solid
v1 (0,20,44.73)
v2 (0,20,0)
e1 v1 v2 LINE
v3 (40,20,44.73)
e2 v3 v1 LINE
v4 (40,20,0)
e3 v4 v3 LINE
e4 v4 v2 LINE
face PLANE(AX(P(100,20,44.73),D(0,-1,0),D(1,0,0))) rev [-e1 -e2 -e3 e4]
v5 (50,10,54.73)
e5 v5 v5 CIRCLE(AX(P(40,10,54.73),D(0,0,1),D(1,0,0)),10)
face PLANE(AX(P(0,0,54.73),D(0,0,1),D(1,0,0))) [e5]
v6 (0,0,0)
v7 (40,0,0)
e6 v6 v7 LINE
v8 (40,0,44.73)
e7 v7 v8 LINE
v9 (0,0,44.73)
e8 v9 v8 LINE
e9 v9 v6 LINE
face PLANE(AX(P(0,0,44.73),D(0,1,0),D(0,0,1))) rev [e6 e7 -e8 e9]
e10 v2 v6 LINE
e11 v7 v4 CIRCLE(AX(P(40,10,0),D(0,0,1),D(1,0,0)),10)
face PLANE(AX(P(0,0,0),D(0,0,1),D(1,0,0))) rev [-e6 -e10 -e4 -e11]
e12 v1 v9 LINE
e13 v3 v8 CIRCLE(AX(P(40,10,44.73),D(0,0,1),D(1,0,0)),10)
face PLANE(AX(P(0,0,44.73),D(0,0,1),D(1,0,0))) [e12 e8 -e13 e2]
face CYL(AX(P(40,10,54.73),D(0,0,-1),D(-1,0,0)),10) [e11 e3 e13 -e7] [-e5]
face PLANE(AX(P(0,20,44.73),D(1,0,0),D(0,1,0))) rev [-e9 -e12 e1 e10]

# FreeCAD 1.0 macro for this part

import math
import FreeCAD as App
import Part
import Sketcher

V = App.Vector


def add_polygon(sketch, points):
    """Adds a closed chain of lines whose ends are joined by coincident constraints."""
    first, n = sketch.GeometryCount, len(points)
    for a, b in zip(points, points[1:] + points[:1]):
        sketch.addGeometry(Part.LineSegment(App.Vector(*a, 0), App.Vector(*b, 0)), False)
    for i in range(n):
        sketch.addConstraint(Sketcher.Constraint("Coincident", first + i, 2, first + (i + 1) % n, 1))

doc = App.newDocument("Part")
body = doc.addObject("PartDesign::Body", "Body")

sketch1 = body.newObject("Sketcher::SketchObject", "Sketch")
sketch1.AttachmentSupport = (doc.getObject("XY_Plane"), [""])
sketch1.MapMode = "FlatFace"
add_polygon(sketch1, [(0, 20), (0, 0), (100, 0), (100, 20)])
sketch1.addConstraint([
    Sketcher.Constraint("Vertical", 0),
    Sketcher.Constraint("Horizontal", 1),
    Sketcher.Constraint("Vertical", 2),
    Sketcher.Constraint("Horizontal", 3),
    Sketcher.Constraint("Coincident", 0, 2, -1, 1),
    Sketcher.Constraint("DistanceX", 1, 1, 1, 2, 100.0),
    Sketcher.Constraint("DistanceY", 0, 2, 0, 1, 20.0),
])
pad1 = body.newObject("PartDesign::Pad", "Pad")
pad1.Profile = sketch1
pad1.Length = 44.73

sketch2 = body.newObject("Sketcher::SketchObject", "Sketch001")
sketch2.AttachmentSupport = (doc.getObject("XY_Plane"), [""])
sketch2.MapMode = "FlatFace"
sketch2.AttachmentOffset = App.Placement(V(0, 0, 44.73), App.Rotation())
sketch2.addGeometry(Part.Circle(V(40, 10, 0), V(0, 0, 1), 10), False)
sketch2.addConstraint([
    Sketcher.Constraint("Diameter", 0, 20.0),
    Sketcher.Constraint("DistanceX", -1, 1, 0, 3, 40.0),
    Sketcher.Constraint("DistanceY", -1, 1, 0, 3, 10.0),
])
pad2 = body.newObject("PartDesign::Pad", "Pad001")
pad2.Profile = sketch2
pad2.Length = 10

sketch3 = body.newObject("Sketcher::SketchObject", "Sketch002")
sketch3.AttachmentSupport = (doc.getObject("XY_Plane"), [""])
sketch3.MapMode = "FlatFace"
sketch3.addGeometry([
    Part.LineSegment(V(40, 0, 0), V(100, 0, 0)),
    Part.LineSegment(V(100, 0, 0), V(100, 20, 0)),
    Part.LineSegment(V(100, 20, 0), V(40, 20, 0)),
    Part.ArcOfCircle(Part.Circle(V(40, 10, 0), V(0, 0, 1), 10), math.radians(-90), math.radians(90)),
], False)
sketch3.addConstraint([
    Sketcher.Constraint("Coincident", 0, 2, 1, 1),
    Sketcher.Constraint("Coincident", 1, 2, 2, 1),
    Sketcher.Constraint("Tangent", 2, 2, 3, 2),
    Sketcher.Constraint("Tangent", 3, 1, 0, 1),
    Sketcher.Constraint("Horizontal", 0),
    Sketcher.Constraint("Vertical", 1),
    Sketcher.Constraint("Horizontal", 2),
    Sketcher.Constraint("PointOnObject", 0, 2, -1),
    Sketcher.Constraint("Radius", 3, 10.0),
    Sketcher.Constraint("DistanceX", 0, 1, 0, 2, 60.0),
    Sketcher.Constraint("DistanceX", -1, 1, 3, 3, 40.0),
])
pocket1 = body.newObject("PartDesign::Pocket", "Pocket")
pocket1.Profile = sketch3
pocket1.Length = 44.73
pocket1.Reversed = True

doc.recompute()
